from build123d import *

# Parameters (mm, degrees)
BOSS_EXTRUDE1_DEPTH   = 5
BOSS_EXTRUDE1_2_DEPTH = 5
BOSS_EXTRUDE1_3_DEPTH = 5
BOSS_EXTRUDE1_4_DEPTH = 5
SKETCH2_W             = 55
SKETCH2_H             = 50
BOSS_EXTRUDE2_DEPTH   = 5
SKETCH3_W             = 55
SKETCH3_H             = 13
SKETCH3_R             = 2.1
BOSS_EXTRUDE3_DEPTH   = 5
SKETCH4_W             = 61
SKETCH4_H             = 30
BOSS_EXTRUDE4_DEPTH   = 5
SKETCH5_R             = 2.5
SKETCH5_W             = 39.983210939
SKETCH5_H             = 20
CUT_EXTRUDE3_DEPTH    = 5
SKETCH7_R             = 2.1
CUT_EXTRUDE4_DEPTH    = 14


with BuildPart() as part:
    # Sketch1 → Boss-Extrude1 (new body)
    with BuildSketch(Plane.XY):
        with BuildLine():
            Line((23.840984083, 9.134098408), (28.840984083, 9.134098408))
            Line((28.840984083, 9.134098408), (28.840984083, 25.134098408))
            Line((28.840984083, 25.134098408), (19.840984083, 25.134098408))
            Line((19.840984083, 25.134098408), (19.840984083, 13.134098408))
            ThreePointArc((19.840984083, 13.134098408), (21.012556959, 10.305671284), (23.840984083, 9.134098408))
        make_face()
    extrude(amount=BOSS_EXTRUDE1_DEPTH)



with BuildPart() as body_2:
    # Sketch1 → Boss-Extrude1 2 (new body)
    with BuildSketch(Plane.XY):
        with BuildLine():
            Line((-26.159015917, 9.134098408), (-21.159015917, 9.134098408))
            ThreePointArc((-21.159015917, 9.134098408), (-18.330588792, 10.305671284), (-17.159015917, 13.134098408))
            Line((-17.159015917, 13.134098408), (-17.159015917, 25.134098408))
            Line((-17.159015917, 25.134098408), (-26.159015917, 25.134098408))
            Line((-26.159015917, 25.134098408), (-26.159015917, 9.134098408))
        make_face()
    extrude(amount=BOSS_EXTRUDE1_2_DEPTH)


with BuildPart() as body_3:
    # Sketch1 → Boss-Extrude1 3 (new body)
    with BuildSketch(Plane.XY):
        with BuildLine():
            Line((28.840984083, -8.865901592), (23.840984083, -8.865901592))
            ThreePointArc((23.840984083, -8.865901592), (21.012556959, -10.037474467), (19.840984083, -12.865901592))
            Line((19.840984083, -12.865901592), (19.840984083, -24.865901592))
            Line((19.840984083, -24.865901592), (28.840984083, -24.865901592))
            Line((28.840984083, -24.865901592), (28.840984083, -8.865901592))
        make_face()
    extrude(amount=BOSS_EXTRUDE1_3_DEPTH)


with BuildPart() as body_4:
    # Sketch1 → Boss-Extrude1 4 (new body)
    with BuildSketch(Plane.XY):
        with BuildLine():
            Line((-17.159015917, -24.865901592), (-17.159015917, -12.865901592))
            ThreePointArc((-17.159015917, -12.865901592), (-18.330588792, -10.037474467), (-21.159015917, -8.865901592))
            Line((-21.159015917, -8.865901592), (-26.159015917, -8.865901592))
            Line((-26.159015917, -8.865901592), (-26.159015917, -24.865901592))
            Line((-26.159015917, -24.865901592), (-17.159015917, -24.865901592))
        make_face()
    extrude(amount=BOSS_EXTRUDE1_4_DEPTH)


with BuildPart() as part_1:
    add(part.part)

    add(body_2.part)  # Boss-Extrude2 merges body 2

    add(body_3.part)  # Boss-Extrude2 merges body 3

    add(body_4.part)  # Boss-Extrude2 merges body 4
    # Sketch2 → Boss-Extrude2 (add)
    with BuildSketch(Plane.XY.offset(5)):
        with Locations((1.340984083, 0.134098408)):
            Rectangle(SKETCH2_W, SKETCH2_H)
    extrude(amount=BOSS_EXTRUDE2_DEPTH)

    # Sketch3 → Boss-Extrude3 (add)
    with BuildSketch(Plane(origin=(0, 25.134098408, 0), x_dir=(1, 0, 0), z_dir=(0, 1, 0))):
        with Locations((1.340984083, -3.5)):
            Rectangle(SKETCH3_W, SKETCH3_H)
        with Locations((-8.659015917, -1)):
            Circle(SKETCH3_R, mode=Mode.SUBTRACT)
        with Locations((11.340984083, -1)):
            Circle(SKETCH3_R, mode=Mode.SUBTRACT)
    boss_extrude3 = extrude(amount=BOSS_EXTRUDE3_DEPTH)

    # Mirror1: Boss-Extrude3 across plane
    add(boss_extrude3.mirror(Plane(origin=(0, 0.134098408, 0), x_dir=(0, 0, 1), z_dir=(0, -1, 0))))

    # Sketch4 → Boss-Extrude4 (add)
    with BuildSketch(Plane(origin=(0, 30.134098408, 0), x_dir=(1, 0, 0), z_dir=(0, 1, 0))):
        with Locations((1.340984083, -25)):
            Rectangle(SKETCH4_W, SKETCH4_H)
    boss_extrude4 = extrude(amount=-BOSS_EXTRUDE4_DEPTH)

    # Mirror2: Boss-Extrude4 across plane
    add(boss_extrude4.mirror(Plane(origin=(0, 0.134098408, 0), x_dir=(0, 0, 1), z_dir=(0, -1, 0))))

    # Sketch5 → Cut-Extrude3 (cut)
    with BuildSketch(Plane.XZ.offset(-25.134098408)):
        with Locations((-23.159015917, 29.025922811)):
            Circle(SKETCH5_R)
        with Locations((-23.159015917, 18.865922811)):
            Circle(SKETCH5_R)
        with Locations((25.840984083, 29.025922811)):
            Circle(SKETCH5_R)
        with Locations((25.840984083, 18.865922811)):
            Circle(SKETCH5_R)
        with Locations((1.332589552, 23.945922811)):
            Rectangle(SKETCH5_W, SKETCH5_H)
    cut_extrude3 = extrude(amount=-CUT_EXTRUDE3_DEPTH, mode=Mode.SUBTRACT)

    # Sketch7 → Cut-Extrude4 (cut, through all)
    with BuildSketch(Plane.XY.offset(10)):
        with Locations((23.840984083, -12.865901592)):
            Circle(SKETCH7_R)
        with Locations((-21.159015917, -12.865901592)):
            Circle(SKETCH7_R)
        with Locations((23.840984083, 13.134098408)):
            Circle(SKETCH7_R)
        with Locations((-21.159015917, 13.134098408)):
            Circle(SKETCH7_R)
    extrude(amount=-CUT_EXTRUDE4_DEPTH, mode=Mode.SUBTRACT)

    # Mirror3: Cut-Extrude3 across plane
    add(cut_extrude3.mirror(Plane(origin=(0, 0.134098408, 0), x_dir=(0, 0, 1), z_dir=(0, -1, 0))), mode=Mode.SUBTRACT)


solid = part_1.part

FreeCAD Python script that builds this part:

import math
import FreeCAD as App
import Part
import Sketcher
from FreeCAD import Vector


def add_polygon(sketch, points):
    """Adds a closed chain of lines whose ends are joined by coincident constraints."""
    first, n = sketch.GeometryCount, len(points)
    for a, b in zip(points, points[1:] + points[:1]):
        sketch.addGeometry(Part.LineSegment(App.Vector(*a, 0), App.Vector(*b, 0)), False)
    for i in range(n):
        sketch.addConstraint(Sketcher.Constraint("Coincident", first + i, 2, first + (i + 1) % n, 1))

doc = App.newDocument("Part")
body = doc.addObject("PartDesign::Body", "Body")

# Sketch on XY plane
sketch1 = body.newObject("Sketcher::SketchObject", "Sketch")
sketch1.AttachmentSupport = (doc.getObject("XY_Plane"), [""])
sketch1.MapMode = "FlatFace"
sketch1.addGeometry([
    Part.LineSegment(Vector(23.8, 9.1, 0), Vector(28.8, 9.1, 0)),  # 0
    Part.LineSegment(Vector(28.8, 9.1, 0), Vector(28.8, 25.1, 0)),  # 1
    Part.LineSegment(Vector(28.8, 25.1, 0), Vector(19.8, 25.1, 0)),  # 2
    Part.LineSegment(Vector(19.8, 25.1, 0), Vector(19.8, 13.1, 0)),  # 3
    Part.ArcOfCircle(Part.Circle(Vector(23.8, 13.1, 0), Vector(0, 0, 1), 4), math.radians(-180), math.radians(-90)),  # 4
], False)
sketch1.addConstraint([
    Sketcher.Constraint("Coincident", 0, 2, 1, 1),
    Sketcher.Constraint("Coincident", 1, 2, 2, 1),
    Sketcher.Constraint("Coincident", 2, 2, 3, 1),
    Sketcher.Constraint("Tangent", 3, 2, 4, 1),
    Sketcher.Constraint("Tangent", 4, 2, 0, 1),
    Sketcher.Constraint("Horizontal", 0),
    Sketcher.Constraint("Vertical", 1),
    Sketcher.Constraint("Horizontal", 2),
    Sketcher.Constraint("Vertical", 3),
    Sketcher.Constraint("Radius", 4, 4.0),
    Sketcher.Constraint("DistanceX", 0, 1, 0, 2, 5.0),
    Sketcher.Constraint("DistanceY", 1, 1, 1, 2, 16.0),
    Sketcher.Constraint("DistanceY", -1, 1, 4, 3, 13.134098),
    Sketcher.Constraint("DistanceX", -1, 1, 4, 3, 23.840984),
])
pad1 = body.newObject("PartDesign::Pad", "Pad")
pad1.Profile = sketch1
pad1.Length = 5
body2 = doc.addObject("PartDesign::Body", "Body001")

# Sketch on XY plane
sketch2 = body2.newObject("Sketcher::SketchObject", "Sketch001")
sketch2.AttachmentSupport = (doc.getObject("XY_Plane001"), [""])
sketch2.MapMode = "FlatFace"
sketch2.addGeometry([
    Part.LineSegment(Vector(-26.2, 9.1, 0), Vector(-21.2, 9.1, 0)),  # 0
    Part.ArcOfCircle(Part.Circle(Vector(-21.2, 13.1, 0), Vector(0, 0, 1), 4), math.radians(-90), math.radians(0)),  # 1
    Part.LineSegment(Vector(-17.2, 13.1, 0), Vector(-17.2, 25.1, 0)),  # 2
    Part.LineSegment(Vector(-17.2, 25.1, 0), Vector(-26.2, 25.1, 0)),  # 3
    Part.LineSegment(Vector(-26.2, 25.1, 0), Vector(-26.2, 9.1, 0)),  # 4
], False)
sketch2.addConstraint([
    Sketcher.Constraint("Tangent", 0, 2, 1, 1),
    Sketcher.Constraint("Tangent", 1, 2, 2, 1),
    Sketcher.Constraint("Coincident", 2, 2, 3, 1),
    Sketcher.Constraint("Coincident", 3, 2, 4, 1),
    Sketcher.Constraint("Coincident", 4, 2, 0, 1),
    Sketcher.Constraint("Horizontal", 0),
    Sketcher.Constraint("Vertical", 2),
    Sketcher.Constraint("Horizontal", 3),
    Sketcher.Constraint("Vertical", 4),
    Sketcher.Constraint("Radius", 1, 4.0),
    Sketcher.Constraint("DistanceX", 0, 1, 0, 2, 5.0),
    Sketcher.Constraint("DistanceY", 2, 1, 2, 2, 12.0),
    Sketcher.Constraint("DistanceY", -1, 1, 1, 3, 13.134098),
    Sketcher.Constraint("DistanceX", 1, 3, -1, 1, 21.159016),
])
pad2 = body2.newObject("PartDesign::Pad", "Pad001")
pad2.Profile = sketch2
pad2.Length = 5
body3 = doc.addObject("PartDesign::Body", "Body002")

# Sketch on XY plane
sketch3 = body3.newObject("Sketcher::SketchObject", "Sketch002")
sketch3.AttachmentSupport = (doc.getObject("XY_Plane002"), [""])
sketch3.MapMode = "FlatFace"
sketch3.addGeometry([
    Part.LineSegment(Vector(28.8, -8.9, 0), Vector(23.8, -8.9, 0)),  # 0
    Part.ArcOfCircle(Part.Circle(Vector(23.8, -12.9, 0), Vector(0, 0, 1), 4), math.radians(90), math.radians(180)),  # 1
    Part.LineSegment(Vector(19.8, -12.9, 0), Vector(19.8, -24.9, 0)),  # 2
    Part.LineSegment(Vector(19.8, -24.9, 0), Vector(28.8, -24.9, 0)),  # 3
    Part.LineSegment(Vector(28.8, -24.9, 0), Vector(28.8, -8.9, 0)),  # 4
], False)
sketch3.addConstraint([
    Sketcher.Constraint("Tangent", 0, 2, 1, 1),
    Sketcher.Constraint("Tangent", 1, 2, 2, 1),
    Sketcher.Constraint("Coincident", 2, 2, 3, 1),
    Sketcher.Constraint("Coincident", 3, 2, 4, 1),
    Sketcher.Constraint("Coincident", 4, 2, 0, 1),
    Sketcher.Constraint("Horizontal", 0),
    Sketcher.Constraint("Vertical", 2),
    Sketcher.Constraint("Horizontal", 3),
    Sketcher.Constraint("Vertical", 4),
    Sketcher.Constraint("Radius", 1, 4.0),
    Sketcher.Constraint("DistanceX", 0, 2, 0, 1, 5.0),
    Sketcher.Constraint("DistanceY", 2, 2, 2, 1, 12.0),
    Sketcher.Constraint("DistanceY", 1, 3, -1, 1, 12.865902),
    Sketcher.Constraint("DistanceX", -1, 1, 1, 3, 23.840984),
])
pad3 = body3.newObject("PartDesign::Pad", "Pad002")
pad3.Profile = sketch3
pad3.Length = 5
body4 = doc.addObject("PartDesign::Body", "Body003")

# Sketch on XY plane
sketch4 = body4.newObject("Sketcher::SketchObject", "Sketch003")
sketch4.AttachmentSupport = (doc.getObject("XY_Plane003"), [""])
sketch4.MapMode = "FlatFace"
sketch4.addGeometry([
    Part.LineSegment(Vector(-17.2, -24.9, 0), Vector(-17.2, -12.9, 0)),  # 0
    Part.ArcOfCircle(Part.Circle(Vector(-21.2, -12.9, 0), Vector(0, 0, 1), 4), math.radians(0), math.radians(90)),  # 1
    Part.LineSegment(Vector(-21.2, -8.9, 0), Vector(-26.2, -8.9, 0)),  # 2
    Part.LineSegment(Vector(-26.2, -8.9, 0), Vector(-26.2, -24.9, 0)),  # 3
    Part.LineSegment(Vector(-26.2, -24.9, 0), Vector(-17.2, -24.9, 0)),  # 4
], False)
sketch4.addConstraint([
    Sketcher.Constraint("Tangent", 0, 2, 1, 1),
    Sketcher.Constraint("Tangent", 1, 2, 2, 1),
    Sketcher.Constraint("Coincident", 2, 2, 3, 1),
    Sketcher.Constraint("Coincident", 3, 2, 4, 1),
    Sketcher.Constraint("Coincident", 4, 2, 0, 1),
    Sketcher.Constraint("Vertical", 0),
    Sketcher.Constraint("Horizontal", 2),
    Sketcher.Constraint("Vertical", 3),
    Sketcher.Constraint("Horizontal", 4),
    Sketcher.Constraint("Radius", 1, 4.0),
    Sketcher.Constraint("DistanceX", 2, 2, 2, 1, 5.0),
    Sketcher.Constraint("DistanceY", 0, 1, 0, 2, 12.0),
    Sketcher.Constraint("DistanceY", 1, 3, -1, 1, 12.865902),
    Sketcher.Constraint("DistanceX", 1, 3, -1, 1, 21.159016),
])
pad4 = body4.newObject("PartDesign::Pad", "Pad003")
pad4.Profile = sketch4
pad4.Length = 5
body.AllowCompound = True
doc.recompute()

boolean = body.newObject("PartDesign::Boolean", "Boolean")
boolean.Type = "Fuse"
boolean.addObjects([body2])
doc.recompute()

boolean2 = body.newObject("PartDesign::Boolean", "Boolean001")
boolean2.Type = "Fuse"
boolean2.addObjects([body3])
doc.recompute()

boolean3 = body.newObject("PartDesign::Boolean", "Boolean002")
boolean3.Type = "Fuse"
boolean3.addObjects([body4])

# Sketch on XY plane
sketch5 = body.newObject("Sketcher::SketchObject", "Sketch004")
sketch5.AttachmentSupport = (doc.getObject("XY_Plane"), [""])
sketch5.MapMode = "FlatFace"
sketch5.AttachmentOffset = App.Placement(Vector(0, 0, 5), App.Rotation())
add_polygon(sketch5, [(-26, 25), (-26, -25), (29, -25), (29, 25)])  # lines 0-3
sketch5.addConstraint([
    Sketcher.Constraint("Vertical", 0),
    Sketcher.Constraint("Horizontal", 1),
    Sketcher.Constraint("Vertical", 2),
    Sketcher.Constraint("Horizontal", 3),
    Sketcher.Constraint("DistanceX", 1, 1, 1, 2, 55.0),
    Sketcher.Constraint("DistanceY", 0, 2, 0, 1, 50.0),
    Sketcher.Constraint("DistanceY", 0, 2, -1, 1, 24.865902),
    Sketcher.Constraint("DistanceX", 0, 2, -1, 1, 26.159016),
])
pad5 = body.newObject("PartDesign::Pad", "Pad004")
pad5.Profile = sketch5
pad5.Length = 5

# Sketch on XZ plane
sketch6 = body.newObject("Sketcher::SketchObject", "Sketch005")
sketch6.AttachmentSupport = (doc.getObject("XZ_Plane"), [""])
sketch6.MapMode = "FlatFace"
sketch6.AttachmentOffset = App.Placement(Vector(0, 0, -25.134098), App.Rotation())
add_polygon(sketch6, [(-26.2, -3), (-26.2, 10), (28.8, 10), (28.8, -3)])  # lines 0-3
sketch6.addGeometry(Part.Circle(Vector(-8.7, 1, 0), Vector(0, 0, 1), 2.1), False)  # 4
sketch6.addGeometry(Part.Circle(Vector(11.3, 1, 0), Vector(0, 0, 1), 2.1), False)  # 5
sketch6.addConstraint([
    Sketcher.Constraint("Vertical", 0),
    Sketcher.Constraint("Horizontal", 1),
    Sketcher.Constraint("Vertical", 2),
    Sketcher.Constraint("Horizontal", 3),
    Sketcher.Constraint("Equal", 4, 5),
    Sketcher.Constraint("Horizontal", 4, 3, 5, 3),
    Sketcher.Constraint("Diameter", 4, 4.2),
    Sketcher.Constraint("DistanceX", 1, 1, 1, 2, 55.0),
    Sketcher.Constraint("DistanceY", 0, 1, 0, 2, 13.0),
    Sketcher.Constraint("DistanceY", -1, 1, 4, 3, 1.0),
    Sketcher.Constraint("DistanceY", -1, 1, 0, 2, 10.0),
    Sketcher.Constraint("DistanceX", 4, 3, 5, 3, 20.0),
    Sketcher.Constraint("DistanceX", 0, 2, 4, 3, 17.5),
    Sketcher.Constraint("DistanceX", 4, 3, -1, 1, 8.659016),
])
pad6 = body.newObject("PartDesign::Pad", "Pad005")
pad6.Profile = sketch6
pad6.Length = 5
pad6.Reversed = True
doc.recompute()

datumplane = body.newObject("PartDesign::Plane", "DatumPlane")
datumplane.AttachmentSupport = (doc.getObject("XZ_Plane"), [""])
datumplane.MapMode = "FlatFace"
datumplane.AttachmentOffset = App.Placement(Vector(0, 0, -0.134098), App.Rotation())
mirrored = body.newObject("PartDesign::Mirrored", "Mirrored")
mirrored.Originals = [pad6]
mirrored.MirrorPlane = (datumplane, [""])
body.Tip = mirrored

# Sketch on XZ plane
sketch7 = body.newObject("Sketcher::SketchObject", "Sketch006")
sketch7.AttachmentSupport = (doc.getObject("XZ_Plane"), [""])
sketch7.MapMode = "FlatFace"
sketch7.AttachmentOffset = App.Placement(Vector(0, 0, -30.134098), App.Rotation())
add_polygon(sketch7, [(-29, 10), (-29, 40), (32, 40), (32, 10)])  # lines 0-3
sketch7.addConstraint([
    Sketcher.Constraint("Vertical", 0),
    Sketcher.Constraint("Horizontal", 1),
    Sketcher.Constraint("Vertical", 2),
    Sketcher.Constraint("Horizontal", 3),
    Sketcher.Constraint("DistanceX", 1, 1, 1, 2, 61.0),
    Sketcher.Constraint("DistanceY", 0, 1, 0, 2, 30.0),
    Sketcher.Constraint("DistanceY", -1, 1, 0, 2, 40.0),
    Sketcher.Constraint("DistanceX", 0, 2, -1, 1, 29.159016),
])
pad7 = body.newObject("PartDesign::Pad", "Pad006")
pad7.Profile = sketch7
pad7.Length = 5
doc.recompute()

datumplane2 = body.newObject("PartDesign::Plane", "DatumPlane001")
datumplane2.AttachmentSupport = (doc.getObject("XZ_Plane"), [""])
datumplane2.MapMode = "FlatFace"
datumplane2.AttachmentOffset = App.Placement(Vector(0, 0, -0.134098), App.Rotation())
mirrored2 = body.newObject("PartDesign::Mirrored", "Mirrored001")
mirrored2.Originals = [pad7]
mirrored2.MirrorPlane = (datumplane2, [""])
body.Tip = mirrored2

# Sketch on XZ plane
sketch8 = body.newObject("Sketcher::SketchObject", "Sketch007")
sketch8.AttachmentSupport = (doc.getObject("XZ_Plane"), [""])
sketch8.MapMode = "FlatFace"
sketch8.AttachmentOffset = App.Placement(Vector(0, 0, -25.134098), App.Rotation())
sketch8.addGeometry(Part.Circle(Vector(-23.2, 29, 0), Vector(0, 0, 1), 2.5), False)  # 0
sketch8.addGeometry(Part.Circle(Vector(-23.2, 18.9, 0), Vector(0, 0, 1), 2.5), False)  # 1
sketch8.addGeometry(Part.Circle(Vector(25.8, 29, 0), Vector(0, 0, 1), 2.5), False)  # 2
sketch8.addGeometry(Part.Circle(Vector(25.8, 18.9, 0), Vector(0, 0, 1), 2.5), False)  # 3
add_polygon(sketch8, [(-18.7, 33.9), (-18.7, 13.9), (21.3, 13.9), (21.3, 33.9)])  # lines 4-7
sketch8.addConstraint([
    Sketcher.Constraint("Vertical", 4),
    Sketcher.Constraint("Horizontal", 5),
    Sketcher.Constraint("Vertical", 6),
    Sketcher.Constraint("Horizontal", 7),
    Sketcher.Constraint("Equal", 0, 1),
    Sketcher.Constraint("Equal", 1, 2),
    Sketcher.Constraint("Equal", 2, 3),
    Sketcher.Constraint("Horizontal", 0, 3, 2, 3),
    Sketcher.Constraint("Horizontal", 1, 3, 3, 3),
    Sketcher.Constraint("Vertical", 0, 3, 1, 3),
    Sketcher.Constraint("Vertical", 2, 3, 3, 3),
    Sketcher.Constraint("Diameter", 0, 5.0),
    Sketcher.Constraint("DistanceY", 4, 2, 4, 1, 20.0),
    Sketcher.Constraint("DistanceX", 0, 3, 2, 3, 49.0),
    Sketcher.Constraint("DistanceX", 1, 3, 4, 2, 4.5),
    Sketcher.Constraint("DistanceY", 1, 3, 0, 3, 10.16),
    Sketcher.Constraint("DistanceY", 4, 2, 1, 3, 4.92),
    Sketcher.Constraint("DistanceX", 5, 1, 5, 2, 39.983211),
    Sketcher.Constraint("DistanceX", 0, 3, -1, 1, 23.159016),
    Sketcher.Constraint("DistanceY", -1, 1, 0, 3, 29.025923),
])
pocket1 = body.newObject("PartDesign::Pocket", "Pocket")
pocket1.Profile = sketch8
pocket1.Length = 5

# Sketch on XY plane
sketch9 = body.newObject("Sketcher::SketchObject", "Sketch008")
sketch9.AttachmentSupport = (doc.getObject("XY_Plane"), [""])
sketch9.MapMode = "FlatFace"
sketch9.AttachmentOffset = App.Placement(Vector(0, 0, 10), App.Rotation())
sketch9.addGeometry([
    Part.Circle(Vector(23.8, -12.9, 0), Vector(0, 0, 1), 2.1),
    Part.Circle(Vector(-21.2, -12.9, 0), Vector(0, 0, 1), 2.1),
    Part.Circle(Vector(23.8, 13.1, 0), Vector(0, 0, 1), 2.1),
    Part.Circle(Vector(-21.2, 13.1, 0), Vector(0, 0, 1), 2.1),
], False)
sketch9.addConstraint([
    Sketcher.Constraint("Equal", 0, 1),
    Sketcher.Constraint("Equal", 1, 2),
    Sketcher.Constraint("Equal", 2, 3),
    Sketcher.Constraint("Horizontal", 0, 3, 1, 3),
    Sketcher.Constraint("Horizontal", 2, 3, 3, 3),
    Sketcher.Constraint("Vertical", 0, 3, 2, 3),
    Sketcher.Constraint("Vertical", 1, 3, 3, 3),
    Sketcher.Constraint("Diameter", 0, 4.2),
    Sketcher.Constraint("DistanceX", 1, 3, 0, 3, 45.0),
    Sketcher.Constraint("DistanceY", 0, 3, 2, 3, 26.0),
    Sketcher.Constraint("DistanceY", 0, 3, -1, 1, 12.865902),
    Sketcher.Constraint("DistanceX", -1, 1, 0, 3, 23.840984),
])
pocket2 = body.newObject("PartDesign::Pocket", "Pocket001")
pocket2.Profile = sketch9
pocket2.Type = "ThroughAll"
doc.recompute()

datumplane3 = body.newObject("PartDesign::Plane", "DatumPlane002")
datumplane3.AttachmentSupport = (doc.getObject("XZ_Plane"), [""])
datumplane3.MapMode = "FlatFace"
datumplane3.AttachmentOffset = App.Placement(Vector(0, 0, -0.134098), App.Rotation())
mirrored3 = body.newObject("PartDesign::Mirrored", "Mirrored002")
mirrored3.Originals = [pocket1]
mirrored3.MirrorPlane = (datumplane3, [""])
body.Tip = mirrored3

doc.recompute()
